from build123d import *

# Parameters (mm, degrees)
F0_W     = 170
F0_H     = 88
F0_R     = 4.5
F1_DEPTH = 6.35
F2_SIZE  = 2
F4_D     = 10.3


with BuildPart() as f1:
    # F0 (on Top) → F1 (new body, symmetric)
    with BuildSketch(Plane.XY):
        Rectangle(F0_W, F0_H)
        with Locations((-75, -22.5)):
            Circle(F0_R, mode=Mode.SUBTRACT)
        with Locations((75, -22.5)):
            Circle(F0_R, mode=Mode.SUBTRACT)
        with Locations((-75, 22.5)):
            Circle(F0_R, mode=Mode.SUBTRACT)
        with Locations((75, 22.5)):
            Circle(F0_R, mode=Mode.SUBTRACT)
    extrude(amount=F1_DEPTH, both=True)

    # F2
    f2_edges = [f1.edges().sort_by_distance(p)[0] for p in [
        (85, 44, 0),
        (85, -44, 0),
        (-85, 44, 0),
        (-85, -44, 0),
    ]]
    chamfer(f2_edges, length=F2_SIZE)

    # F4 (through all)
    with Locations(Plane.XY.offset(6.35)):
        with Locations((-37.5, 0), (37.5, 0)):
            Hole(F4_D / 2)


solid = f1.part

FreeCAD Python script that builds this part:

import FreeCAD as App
import Part
import Sketcher
from FreeCAD import Vector


def edges_at(feature, points):
    """Names of the edges that pass closest to the given points."""
    edges = feature.Shape.Edges
    near = lambda p: min(range(len(edges)), key=lambda i: edges[i].distToShape(Part.Vertex(*p))[0])
    return sorted({f"Edge{near(p) + 1}" for p in points})


def add_polygon(sketch, points):
    """Adds a closed chain of lines whose ends are joined by coincident constraints."""
    first, n = sketch.GeometryCount, len(points)
    for a, b in zip(points, points[1:] + points[:1]):
        sketch.addGeometry(Part.LineSegment(App.Vector(*a, 0), App.Vector(*b, 0)), False)
    for i in range(n):
        sketch.addConstraint(Sketcher.Constraint("Coincident", first + i, 2, first + (i + 1) % n, 1))

doc = App.newDocument("Part")
body = doc.addObject("PartDesign::Body", "Body")

sketch1 = doc.addObject("Sketcher::SketchObject", "Sketch")
body.addObject(sketch1)
sketch1.AttachmentSupport = (doc.XY_Plane, [""])
sketch1.MapMode = "FlatFace"
add_polygon(sketch1, [(-85, 44), (-85, -44), (85, -44), (85, 44)])
sketch1.addGeometry(Part.Circle(Vector(-75, -22.5, 0), Vector(0, 0, 1), 4.5), False)
sketch1.addGeometry(Part.Circle(Vector(75, -22.5, 0), Vector(0, 0, 1), 4.5), False)
sketch1.addGeometry(Part.Circle(Vector(-75, 22.5, 0), Vector(0, 0, 1), 4.5), False)
sketch1.addGeometry(Part.Circle(Vector(75, 22.5, 0), Vector(0, 0, 1), 4.5), False)
sketch1.addConstraint(Sketcher.Constraint("Vertical", 0))
sketch1.addConstraint(Sketcher.Constraint("Horizontal", 1))
sketch1.addConstraint(Sketcher.Constraint("Vertical", 2))
sketch1.addConstraint(Sketcher.Constraint("Horizontal", 3))
sketch1.addConstraint(Sketcher.Constraint("Equal", 4, 5))
sketch1.addConstraint(Sketcher.Constraint("Equal", 5, 6))
sketch1.addConstraint(Sketcher.Constraint("Equal", 6, 7))
sketch1.addConstraint(Sketcher.Constraint("Symmetric", 5, 3, 6, 3, -1, 1))
sketch1.addConstraint(Sketcher.Constraint("Symmetric", 4, 3, 7, 3, -1, 1))
sketch1.addConstraint(Sketcher.Constraint("Symmetric", 0, 2, 2, 2, -1, 1))
sketch1.addConstraint(Sketcher.Constraint("Symmetric", 4, 3, 5, 3, -2))
sketch1.addConstraint(Sketcher.Constraint("Diameter", 4, 9.0))
sketch1.addConstraint(Sketcher.Constraint("DistanceX", 1, 1, 1, 2, 170.0))
sketch1.addConstraint(Sketcher.Constraint("DistanceY", 0, 2, 0, 1, 88.0))
sketch1.addConstraint(Sketcher.Constraint("DistanceX", 4, 3, -1, 1, 75.0))
sketch1.addConstraint(Sketcher.Constraint("DistanceY", 4, 3, 6, 3, 45.0))
pad1 = doc.addObject("PartDesign::Pad", "Pad")
body.addObject(pad1)
pad1.Profile = sketch1
pad1.Length = 12.7
pad1.Midplane = True
doc.recompute()

chamfer = doc.addObject("PartDesign::Chamfer", "Chamfer")
body.addObject(chamfer)
chamfer.Base = (pad1, edges_at(pad1, [
    (85, 44, 0),
    (85, -44, 0),
    (-85, 44, 0),
    (-85, -44, 0),
]))
chamfer.Size = 2

sketch2 = doc.addObject("Sketcher::SketchObject", "Sketch001")
body.addObject(sketch2)
sketch2.AttachmentSupport = (doc.XY_Plane, [""])
sketch2.MapMode = "FlatFace"
sketch2.AttachmentOffset = App.Placement(Vector(0, 0, 6.35), App.Rotation())
sketch2.addGeometry(Part.Circle(Vector(-38, 0, 0), Vector(0, 0, 1), 5), False)
sketch2.addGeometry(Part.Circle(Vector(38, 0, 0), Vector(0, 0, 1), 5), False)
sketch2.addConstraint(Sketcher.Constraint("Equal", 0, 1))
sketch2.addConstraint(Sketcher.Constraint("Symmetric", 0, 3, 1, 3, -1, 1))
sketch2.addConstraint(Sketcher.Constraint("PointOnObject", 0, 3, -1))
sketch2.addConstraint(Sketcher.Constraint("Diameter", 0, 10.3))
sketch2.addConstraint(Sketcher.Constraint("DistanceX", 0, 3, 1, 3, 75.0))
doc.recompute()
hole = doc.addObject("PartDesign::Hole", "Hole")
body.addObject(hole)
hole.Profile = sketch2
hole.ThreadType = "None"
hole.Diameter = 10.3
hole.DepthType = "ThroughAll"

doc.recompute()
